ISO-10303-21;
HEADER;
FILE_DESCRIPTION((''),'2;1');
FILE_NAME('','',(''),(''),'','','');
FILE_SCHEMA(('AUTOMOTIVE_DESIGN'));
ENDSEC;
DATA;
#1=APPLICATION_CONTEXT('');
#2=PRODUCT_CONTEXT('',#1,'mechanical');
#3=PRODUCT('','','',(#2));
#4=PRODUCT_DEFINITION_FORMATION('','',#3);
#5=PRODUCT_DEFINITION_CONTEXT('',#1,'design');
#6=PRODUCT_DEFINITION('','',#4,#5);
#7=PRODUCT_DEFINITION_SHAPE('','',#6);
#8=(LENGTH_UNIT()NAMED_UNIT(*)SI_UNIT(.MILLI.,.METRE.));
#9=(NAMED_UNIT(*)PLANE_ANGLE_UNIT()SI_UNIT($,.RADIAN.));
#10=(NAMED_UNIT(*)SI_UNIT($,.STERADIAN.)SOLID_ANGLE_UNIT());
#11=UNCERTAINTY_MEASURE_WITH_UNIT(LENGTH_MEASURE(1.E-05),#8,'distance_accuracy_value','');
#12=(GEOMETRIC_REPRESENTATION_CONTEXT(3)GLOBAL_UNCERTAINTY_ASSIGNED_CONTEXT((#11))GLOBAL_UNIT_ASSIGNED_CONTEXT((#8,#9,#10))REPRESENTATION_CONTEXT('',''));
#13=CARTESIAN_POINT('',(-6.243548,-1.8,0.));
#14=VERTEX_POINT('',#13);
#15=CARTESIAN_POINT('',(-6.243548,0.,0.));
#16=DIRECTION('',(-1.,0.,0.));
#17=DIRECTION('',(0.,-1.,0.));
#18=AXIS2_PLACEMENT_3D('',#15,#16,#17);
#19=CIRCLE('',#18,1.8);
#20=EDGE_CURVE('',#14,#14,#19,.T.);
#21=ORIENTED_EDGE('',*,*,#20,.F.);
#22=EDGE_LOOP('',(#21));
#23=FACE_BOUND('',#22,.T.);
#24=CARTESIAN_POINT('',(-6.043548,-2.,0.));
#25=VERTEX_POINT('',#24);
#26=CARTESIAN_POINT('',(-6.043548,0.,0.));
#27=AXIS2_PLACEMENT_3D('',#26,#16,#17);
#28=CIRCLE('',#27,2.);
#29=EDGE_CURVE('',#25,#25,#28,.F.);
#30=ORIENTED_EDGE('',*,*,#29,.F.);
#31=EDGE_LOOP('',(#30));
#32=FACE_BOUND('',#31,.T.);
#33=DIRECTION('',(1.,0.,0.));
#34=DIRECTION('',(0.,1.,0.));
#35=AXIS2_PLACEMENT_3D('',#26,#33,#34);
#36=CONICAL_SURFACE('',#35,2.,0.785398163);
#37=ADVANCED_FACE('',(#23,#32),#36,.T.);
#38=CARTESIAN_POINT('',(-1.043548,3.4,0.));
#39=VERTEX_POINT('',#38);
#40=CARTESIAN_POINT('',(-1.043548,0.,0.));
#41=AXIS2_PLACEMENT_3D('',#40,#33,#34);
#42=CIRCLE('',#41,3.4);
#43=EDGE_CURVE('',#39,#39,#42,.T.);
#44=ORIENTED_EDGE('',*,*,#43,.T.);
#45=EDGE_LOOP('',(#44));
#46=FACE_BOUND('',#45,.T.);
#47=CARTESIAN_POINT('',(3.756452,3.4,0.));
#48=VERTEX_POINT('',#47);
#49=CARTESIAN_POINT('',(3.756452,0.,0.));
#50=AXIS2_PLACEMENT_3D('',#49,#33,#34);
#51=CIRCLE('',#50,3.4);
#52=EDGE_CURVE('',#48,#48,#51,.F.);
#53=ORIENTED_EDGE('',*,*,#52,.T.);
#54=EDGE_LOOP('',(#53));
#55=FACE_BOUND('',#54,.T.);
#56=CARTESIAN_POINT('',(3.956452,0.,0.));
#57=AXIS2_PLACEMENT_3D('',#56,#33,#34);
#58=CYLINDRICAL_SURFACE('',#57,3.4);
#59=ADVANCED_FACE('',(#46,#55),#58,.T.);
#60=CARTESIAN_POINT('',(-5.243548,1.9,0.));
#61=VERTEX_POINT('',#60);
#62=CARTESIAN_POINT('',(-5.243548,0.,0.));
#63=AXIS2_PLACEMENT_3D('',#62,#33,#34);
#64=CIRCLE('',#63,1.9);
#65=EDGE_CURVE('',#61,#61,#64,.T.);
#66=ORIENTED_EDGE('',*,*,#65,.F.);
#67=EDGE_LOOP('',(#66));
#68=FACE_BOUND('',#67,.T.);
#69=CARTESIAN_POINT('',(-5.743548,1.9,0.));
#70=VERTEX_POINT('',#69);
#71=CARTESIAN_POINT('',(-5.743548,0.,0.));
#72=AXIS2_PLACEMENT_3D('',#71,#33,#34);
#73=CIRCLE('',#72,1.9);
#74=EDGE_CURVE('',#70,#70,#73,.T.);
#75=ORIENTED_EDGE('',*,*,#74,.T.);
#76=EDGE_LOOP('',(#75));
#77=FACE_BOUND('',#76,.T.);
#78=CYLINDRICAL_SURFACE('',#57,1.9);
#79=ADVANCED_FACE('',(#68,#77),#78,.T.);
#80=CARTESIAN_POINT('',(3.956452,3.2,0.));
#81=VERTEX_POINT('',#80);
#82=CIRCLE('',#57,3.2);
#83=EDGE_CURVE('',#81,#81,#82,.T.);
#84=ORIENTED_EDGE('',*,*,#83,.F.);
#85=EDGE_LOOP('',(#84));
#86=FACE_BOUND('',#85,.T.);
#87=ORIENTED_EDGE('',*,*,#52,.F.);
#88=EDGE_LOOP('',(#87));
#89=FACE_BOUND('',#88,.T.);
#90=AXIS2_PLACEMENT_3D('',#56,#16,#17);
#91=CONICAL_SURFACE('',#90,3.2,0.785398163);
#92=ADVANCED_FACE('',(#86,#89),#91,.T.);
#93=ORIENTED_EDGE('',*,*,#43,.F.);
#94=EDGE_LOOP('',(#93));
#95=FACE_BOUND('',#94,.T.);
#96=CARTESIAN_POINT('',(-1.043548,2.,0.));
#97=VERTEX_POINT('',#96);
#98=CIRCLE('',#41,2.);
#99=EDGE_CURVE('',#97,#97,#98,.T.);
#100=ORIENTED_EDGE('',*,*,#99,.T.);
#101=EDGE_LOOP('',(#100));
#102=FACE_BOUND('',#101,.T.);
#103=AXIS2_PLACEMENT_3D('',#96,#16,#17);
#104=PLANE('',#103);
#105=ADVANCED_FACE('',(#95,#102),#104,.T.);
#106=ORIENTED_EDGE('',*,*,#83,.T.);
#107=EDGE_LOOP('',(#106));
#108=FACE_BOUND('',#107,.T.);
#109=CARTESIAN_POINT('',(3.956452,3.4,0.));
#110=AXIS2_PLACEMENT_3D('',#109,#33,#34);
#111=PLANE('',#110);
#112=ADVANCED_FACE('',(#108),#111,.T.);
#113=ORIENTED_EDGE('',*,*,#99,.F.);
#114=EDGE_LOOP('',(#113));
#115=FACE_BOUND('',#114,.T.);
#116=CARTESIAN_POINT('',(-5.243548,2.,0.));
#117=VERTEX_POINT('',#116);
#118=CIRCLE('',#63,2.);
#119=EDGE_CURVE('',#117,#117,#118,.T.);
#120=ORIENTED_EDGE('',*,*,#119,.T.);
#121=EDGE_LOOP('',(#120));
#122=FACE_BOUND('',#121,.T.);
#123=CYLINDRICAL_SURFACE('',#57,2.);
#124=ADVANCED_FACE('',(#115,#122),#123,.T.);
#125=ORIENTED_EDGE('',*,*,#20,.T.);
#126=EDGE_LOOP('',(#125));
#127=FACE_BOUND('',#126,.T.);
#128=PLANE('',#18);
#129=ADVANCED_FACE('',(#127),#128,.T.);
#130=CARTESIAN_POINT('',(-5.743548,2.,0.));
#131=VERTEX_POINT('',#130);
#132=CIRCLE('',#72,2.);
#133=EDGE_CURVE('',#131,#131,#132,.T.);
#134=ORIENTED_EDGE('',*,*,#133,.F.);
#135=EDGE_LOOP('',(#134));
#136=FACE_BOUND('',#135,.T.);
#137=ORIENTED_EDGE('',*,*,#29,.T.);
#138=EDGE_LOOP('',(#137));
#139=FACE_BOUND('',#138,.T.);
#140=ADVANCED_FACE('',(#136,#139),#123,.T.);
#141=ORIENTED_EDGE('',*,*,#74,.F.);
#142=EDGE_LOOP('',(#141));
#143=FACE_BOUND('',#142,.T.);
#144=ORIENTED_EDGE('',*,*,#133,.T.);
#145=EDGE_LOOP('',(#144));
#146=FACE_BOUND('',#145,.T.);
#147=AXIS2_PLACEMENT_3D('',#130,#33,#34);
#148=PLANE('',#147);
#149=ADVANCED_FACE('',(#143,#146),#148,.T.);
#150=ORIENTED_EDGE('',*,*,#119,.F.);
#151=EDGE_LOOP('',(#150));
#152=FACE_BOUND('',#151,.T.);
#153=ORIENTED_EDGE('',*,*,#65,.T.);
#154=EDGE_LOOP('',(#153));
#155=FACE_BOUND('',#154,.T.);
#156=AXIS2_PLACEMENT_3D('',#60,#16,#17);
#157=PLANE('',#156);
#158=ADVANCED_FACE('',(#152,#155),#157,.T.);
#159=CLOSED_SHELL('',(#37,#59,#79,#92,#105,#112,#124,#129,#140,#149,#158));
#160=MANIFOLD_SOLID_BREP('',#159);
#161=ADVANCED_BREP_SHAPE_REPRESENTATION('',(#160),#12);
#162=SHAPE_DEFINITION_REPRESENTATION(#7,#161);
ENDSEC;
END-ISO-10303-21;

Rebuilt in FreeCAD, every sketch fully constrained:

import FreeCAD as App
import Part
import Sketcher


def edges_at(feature, points):
    """Names of the edges that pass closest to the given points."""
    edges = feature.Shape.Edges
    near = lambda p: min(range(len(edges)), key=lambda i: edges[i].distToShape(Part.Vertex(*p))[0])
    return sorted({f"Edge{near(p) + 1}" for p in points})

doc = App.newDocument("Part")
body = doc.addObject("PartDesign::Body", "Body")

# Sketch on XY plane
sketch1 = body.newObject("Sketcher::SketchObject", "Sketch")
sketch1.AttachmentSupport = (doc.getObject("XY_Plane"), [""])
sketch1.MapMode = "FlatFace"
sketch1.addGeometry([
    Part.LineSegment(App.Vector(-6.24, 0, 0), App.Vector(3.96, 0, 0)),  # 0
    Part.LineSegment(App.Vector(3.96, 0, 0), App.Vector(3.96, 3.4, 0)),  # 1
    Part.LineSegment(App.Vector(3.96, 3.4, 0), App.Vector(-1.04, 3.4, 0)),  # 2
    Part.LineSegment(App.Vector(-1.04, 3.4, 0), App.Vector(-1.04, 2, 0)),  # 3
    Part.LineSegment(App.Vector(-1.04, 2, 0), App.Vector(-5.24, 2, 0)),  # 4
    Part.LineSegment(App.Vector(-5.24, 2, 0), App.Vector(-5.24, 1.9, 0)),  # 5
    Part.LineSegment(App.Vector(-5.24, 1.9, 0), App.Vector(-5.74, 1.9, 0)),  # 6
    Part.LineSegment(App.Vector(-5.74, 1.9, 0), App.Vector(-5.74, 2, 0)),  # 7
    Part.LineSegment(App.Vector(-5.74, 2, 0), App.Vector(-6.24, 2, 0)),  # 8
    Part.LineSegment(App.Vector(-6.24, 2, 0), App.Vector(-6.24, 0, 0)),  # 9
], False)
sketch1.addConstraint([
    Sketcher.Constraint("Coincident", 0, 2, 1, 1),
    Sketcher.Constraint("Coincident", 1, 2, 2, 1),
    Sketcher.Constraint("Coincident", 2, 2, 3, 1),
    Sketcher.Constraint("Coincident", 3, 2, 4, 1),
    Sketcher.Constraint("Coincident", 4, 2, 5, 1),
    Sketcher.Constraint("Coincident", 5, 2, 6, 1),
    Sketcher.Constraint("Coincident", 6, 2, 7, 1),
    Sketcher.Constraint("Coincident", 7, 2, 8, 1),
    Sketcher.Constraint("Coincident", 8, 2, 9, 1),
    Sketcher.Constraint("Coincident", 9, 2, 0, 1),
    Sketcher.Constraint("Horizontal", 0),
    Sketcher.Constraint("Vertical", 1),
    Sketcher.Constraint("Horizontal", 2),
    Sketcher.Constraint("Vertical", 3),
    Sketcher.Constraint("Horizontal", 4),
    Sketcher.Constraint("Vertical", 5),
    Sketcher.Constraint("Horizontal", 6),
    Sketcher.Constraint("Vertical", 7),
    Sketcher.Constraint("Horizontal", 8),
    Sketcher.Constraint("Vertical", 9),
    Sketcher.Constraint("PointOnObject", 0, 2, -1),
    Sketcher.Constraint("Horizontal", 4, 2, 7, 2),
    Sketcher.Constraint("Equal", 6, 8),
    Sketcher.Constraint("DistanceX", 2, 2, 2, 1, 5.0),
    Sketcher.Constraint("DistanceY", 9, 2, 9, 1, 2.0),
    Sketcher.Constraint("DistanceX", 0, 1, 0, 2, 10.2),
    Sketcher.Constraint("DistanceX", 4, 2, 4, 1, 4.2),
    Sketcher.Constraint("DistanceY", 1, 1, 1, 2, 3.4),
    Sketcher.Constraint("DistanceY", 5, 2, 5, 1, 0.1),
    Sketcher.Constraint("DistanceX", -1, 1, 0, 2, 3.956452),
])
revolution = body.newObject("PartDesign::Revolution", "Revolution")
revolution.Profile = sketch1
revolution.ReferenceAxis = (sketch1, ["H_Axis"])
revolution.Angle = 360
doc.recompute()

chamfer = body.newObject("PartDesign::Chamfer", "Chamfer")
chamfer.Base = (revolution, edges_at(revolution, [(-6.244, -2, 0), (3.956, -3.4, 0)]))
chamfer.Size = 0.2

doc.recompute()
